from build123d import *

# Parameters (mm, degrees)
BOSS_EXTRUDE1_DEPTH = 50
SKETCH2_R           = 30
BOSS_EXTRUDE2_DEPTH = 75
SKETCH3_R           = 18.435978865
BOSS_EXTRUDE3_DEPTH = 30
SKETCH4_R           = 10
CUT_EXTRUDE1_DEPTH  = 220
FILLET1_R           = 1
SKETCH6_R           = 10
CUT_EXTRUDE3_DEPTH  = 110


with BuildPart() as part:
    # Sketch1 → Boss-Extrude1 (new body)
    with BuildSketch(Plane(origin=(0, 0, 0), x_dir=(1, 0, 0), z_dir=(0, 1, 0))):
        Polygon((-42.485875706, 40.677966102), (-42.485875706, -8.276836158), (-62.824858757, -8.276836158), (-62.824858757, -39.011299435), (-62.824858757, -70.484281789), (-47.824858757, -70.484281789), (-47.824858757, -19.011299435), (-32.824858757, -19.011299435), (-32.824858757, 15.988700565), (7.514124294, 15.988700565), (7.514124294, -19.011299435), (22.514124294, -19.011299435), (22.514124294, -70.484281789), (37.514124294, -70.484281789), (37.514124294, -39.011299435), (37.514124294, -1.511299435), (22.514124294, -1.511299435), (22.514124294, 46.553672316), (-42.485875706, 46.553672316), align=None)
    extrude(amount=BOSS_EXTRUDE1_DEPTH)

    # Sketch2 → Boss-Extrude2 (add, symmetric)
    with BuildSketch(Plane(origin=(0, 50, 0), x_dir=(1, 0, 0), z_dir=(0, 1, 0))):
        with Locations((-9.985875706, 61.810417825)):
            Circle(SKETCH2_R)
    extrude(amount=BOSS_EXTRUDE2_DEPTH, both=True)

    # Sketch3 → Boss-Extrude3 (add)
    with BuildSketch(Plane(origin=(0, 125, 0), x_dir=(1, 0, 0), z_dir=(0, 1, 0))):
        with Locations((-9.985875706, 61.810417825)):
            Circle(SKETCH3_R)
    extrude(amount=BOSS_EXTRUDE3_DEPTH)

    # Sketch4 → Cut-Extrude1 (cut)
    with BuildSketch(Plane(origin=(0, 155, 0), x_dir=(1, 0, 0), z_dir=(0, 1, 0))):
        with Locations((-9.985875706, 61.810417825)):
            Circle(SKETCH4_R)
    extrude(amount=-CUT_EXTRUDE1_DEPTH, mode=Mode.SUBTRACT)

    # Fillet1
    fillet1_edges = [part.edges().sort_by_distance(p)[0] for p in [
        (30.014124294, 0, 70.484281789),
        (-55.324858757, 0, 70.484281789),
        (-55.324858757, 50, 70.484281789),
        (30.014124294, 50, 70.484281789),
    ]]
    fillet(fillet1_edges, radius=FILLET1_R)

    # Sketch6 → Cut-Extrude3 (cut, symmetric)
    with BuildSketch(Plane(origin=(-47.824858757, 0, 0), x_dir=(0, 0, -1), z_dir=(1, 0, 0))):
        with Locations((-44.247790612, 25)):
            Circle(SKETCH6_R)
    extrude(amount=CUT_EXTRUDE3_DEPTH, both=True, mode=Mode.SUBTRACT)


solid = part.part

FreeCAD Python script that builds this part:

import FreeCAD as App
import Part
import Sketcher
from FreeCAD import Vector


def edges_at(feature, points):
    """Names of the edges that pass closest to the given points."""
    edges = feature.Shape.Edges
    near = lambda p: min(range(len(edges)), key=lambda i: edges[i].distToShape(Part.Vertex(*p))[0])
    return sorted({f"Edge{near(p) + 1}" for p in points})


def add_polygon(sketch, points):
    """Adds a closed chain of lines whose ends are joined by coincident constraints."""
    first, n = sketch.GeometryCount, len(points)
    for a, b in zip(points, points[1:] + points[:1]):
        sketch.addGeometry(Part.LineSegment(App.Vector(*a, 0), App.Vector(*b, 0)), False)
    for i in range(n):
        sketch.addConstraint(Sketcher.Constraint("Coincident", first + i, 2, first + (i + 1) % n, 1))

doc = App.newDocument("Part")
params = doc.addObject("Spreadsheet::Sheet", "Params")
for row, (alias, value) in enumerate([
    ("sketch1_width", "15 mm"),
    ("sketch1_width2", "65 mm"),
    ("sketch1_height", "35 mm"),
    ("pad1_length", "50 mm"),
    ("sketch2_diameter", "60 mm"),
    ("pad2_length", "150 mm"),
    ("pad3_length", "30 mm"),
    ("sketch4_diameter", "20 mm"),
    ("pocket1_length", "220 mm"),
    ("fillet_radius", "1 mm"),
    ("sketch5_diameter", "20 mm"),
    ("pocket2_length", "220 mm"),
], start=1):
    params.set(f"A{row}", alias)
    params.set(f"B{row}", "=" + value)
    params.setAlias(f"B{row}", alias)

body = doc.addObject("PartDesign::Body", "Body")

# Sketch on XZ plane
sketch1 = doc.addObject("Sketcher::SketchObject", "Sketch")
body.addObject(sketch1)
sketch1.AttachmentSupport = (doc.XZ_Plane, [""])
sketch1.MapMode = "FlatFace"
add_polygon(sketch1, [(-42, 8), (-63, 8), (-63, 70), (-48, 70), (-48, 19), (-33, 19), (-33, -16), (8, -16), (8, 19), (23, 19), (23, 70), (38, 70), (38, 2), (23, 2), (23, -47), (-42, -47)])  # lines 0-15
sketch1.addConstraint([
    Sketcher.Constraint("Horizontal", 0),
    Sketcher.Constraint("Vertical", 1),
    Sketcher.Constraint("Horizontal", 2),
    Sketcher.Constraint("Vertical", 3),
    Sketcher.Constraint("Horizontal", 4),
    Sketcher.Constraint("Vertical", 5),
    Sketcher.Constraint("Horizontal", 6),
    Sketcher.Constraint("Vertical", 7),
    Sketcher.Constraint("Horizontal", 8),
    Sketcher.Constraint("Vertical", 9),
    Sketcher.Constraint("Horizontal", 10),
    Sketcher.Constraint("Vertical", 11),
    Sketcher.Constraint("Horizontal", 12),
    Sketcher.Constraint("Vertical", 13),
    Sketcher.Constraint("Horizontal", 14),
    Sketcher.Constraint("Vertical", 15),
    Sketcher.Constraint("Horizontal", 4, 2, 7, 2),
    Sketcher.Constraint("Horizontal", 2, 2, 9, 2),
    Sketcher.Constraint("Vertical", 9, 2, 12, 2),
    Sketcher.Constraint("Equal", 2, 4),
    Sketcher.Constraint("Equal", 4, 8),
    Sketcher.Constraint("Equal", 8, 10),
    Sketcher.Constraint("DistanceX", 2, 1, 2, 2, 15.0),
    Sketcher.Constraint("DistanceX", 14, 2, 14, 1, 65.0),
    Sketcher.Constraint("DistanceY", 5, 2, 5, 1, 35.0),
    Sketcher.Constraint("DistanceY", 11, 2, 8, 2, 17.5),
    Sketcher.Constraint("DistanceY", 13, 2, 13, 1, 48.064972),
    Sketcher.Constraint("DistanceY", 15, 1, 15, 2, 54.830508),
    Sketcher.Constraint("DistanceY", -1, 1, 3, 2, 19.011299),
    Sketcher.Constraint("DistanceX", 0, 2, 0, 1, 20.338983),
    Sketcher.Constraint("DistanceY", 1, 1, 1, 2, 62.207446),
    Sketcher.Constraint("DistanceX", 0, 2, -1, 1, 62.824859),
])
sketch1.setExpression("Constraints[38]", "Params.sketch1_width")
sketch1.setExpression("Constraints[39]", "Params.sketch1_width2")
sketch1.setExpression("Constraints[40]", "Params.sketch1_height")
pad1 = doc.addObject("PartDesign::Pad", "Pad")
body.addObject(pad1)
pad1.Profile = sketch1
pad1.setExpression("Length", "Params.pad1_length")
pad1.Reversed = True

# Sketch on XZ plane
sketch2 = doc.addObject("Sketcher::SketchObject", "Sketch001")
body.addObject(sketch2)
sketch2.AttachmentSupport = (doc.XZ_Plane, [""])
sketch2.MapMode = "FlatFace"
sketch2.AttachmentOffset = App.Placement(Vector(0, 0, -50), App.Rotation())
sketch2.addGeometry(Part.Circle(Vector(-10, -62, 0), Vector(0, 0, 1), 30), False)
sketch2.addConstraint([
    Sketcher.Constraint("Diameter", 0, 60.0),
    Sketcher.Constraint("DistanceX", 0, 3, -1, 1, 9.985876),
    Sketcher.Constraint("DistanceY", 0, 3, -1, 1, 61.810418),
])
sketch2.setExpression("Constraints[0]", "Params.sketch2_diameter")
pad2 = doc.addObject("PartDesign::Pad", "Pad001")
body.addObject(pad2)
pad2.Profile = sketch2
pad2.setExpression("Length", "Params.pad2_length")
pad2.Midplane = True

# Sketch on XZ plane
sketch3 = doc.addObject("Sketcher::SketchObject", "Sketch002")
body.addObject(sketch3)
sketch3.AttachmentSupport = (doc.XZ_Plane, [""])
sketch3.MapMode = "FlatFace"
sketch3.AttachmentOffset = App.Placement(Vector(0, 0, -125), App.Rotation())
sketch3.addGeometry(Part.Circle(Vector(-10, -62, 0), Vector(0, 0, 1), 18), False)
sketch3.addConstraint([
    Sketcher.Constraint("Diameter", 0, 36.871958),
    Sketcher.Constraint("DistanceX", 0, 3, -1, 1, 9.985876),
    Sketcher.Constraint("DistanceY", 0, 3, -1, 1, 61.810418),
])
pad3 = doc.addObject("PartDesign::Pad", "Pad002")
body.addObject(pad3)
pad3.Profile = sketch3
pad3.setExpression("Length", "Params.pad3_length")
pad3.Reversed = True

# Sketch on XZ plane
sketch4 = doc.addObject("Sketcher::SketchObject", "Sketch003")
body.addObject(sketch4)
sketch4.AttachmentSupport = (doc.XZ_Plane, [""])
sketch4.MapMode = "FlatFace"
sketch4.AttachmentOffset = App.Placement(Vector(0, 0, -155), App.Rotation())
sketch4.addGeometry(Part.Circle(Vector(-10, -62, 0), Vector(0, 0, 1), 10), False)
sketch4.addConstraint([
    Sketcher.Constraint("Diameter", 0, 20.0),
    Sketcher.Constraint("DistanceX", 0, 3, -1, 1, 9.985876),
    Sketcher.Constraint("DistanceY", 0, 3, -1, 1, 61.810418),
])
sketch4.setExpression("Constraints[0]", "Params.sketch4_diameter")
pocket1 = doc.addObject("PartDesign::Pocket", "Pocket")
body.addObject(pocket1)
pocket1.Profile = sketch4
pocket1.setExpression("Length", "Params.pocket1_length")
pocket1.Reversed = True
doc.recompute()

fillet = doc.addObject("PartDesign::Fillet", "Fillet")
body.addObject(fillet)
fillet.Base = (pocket1, edges_at(pocket1, [
    (30.014, 0, 70.484),
    (-55.325, 0, 70.484),
    (-55.325, 50, 70.484),
    (30.014, 50, 70.484),
]))
fillet.setExpression("Radius", "Params.fillet_radius")

# Sketch on YZ plane
sketch5 = doc.addObject("Sketcher::SketchObject", "Sketch004")
body.addObject(sketch5)
sketch5.AttachmentSupport = (doc.YZ_Plane, [""])
sketch5.MapMode = "FlatFace"
sketch5.AttachmentOffset = App.Placement(Vector(0, 0, -47.824859), App.Rotation())
sketch5.addGeometry(Part.Circle(Vector(25, 44, 0), Vector(0, 0, 1), 10), False)
sketch5.addConstraint([
    Sketcher.Constraint("Diameter", 0, 20.0),
    Sketcher.Constraint("DistanceX", -1, 1, 0, 3, 25.0),
    Sketcher.Constraint("DistanceY", -1, 1, 0, 3, 44.247791),
])
sketch5.setExpression("Constraints[0]", "Params.sketch5_diameter")
pocket2 = doc.addObject("PartDesign::Pocket", "Pocket001")
body.addObject(pocket2)
pocket2.Profile = sketch5
pocket2.setExpression("Length", "Params.pocket2_length")
pocket2.Midplane = True

doc.recompute()
